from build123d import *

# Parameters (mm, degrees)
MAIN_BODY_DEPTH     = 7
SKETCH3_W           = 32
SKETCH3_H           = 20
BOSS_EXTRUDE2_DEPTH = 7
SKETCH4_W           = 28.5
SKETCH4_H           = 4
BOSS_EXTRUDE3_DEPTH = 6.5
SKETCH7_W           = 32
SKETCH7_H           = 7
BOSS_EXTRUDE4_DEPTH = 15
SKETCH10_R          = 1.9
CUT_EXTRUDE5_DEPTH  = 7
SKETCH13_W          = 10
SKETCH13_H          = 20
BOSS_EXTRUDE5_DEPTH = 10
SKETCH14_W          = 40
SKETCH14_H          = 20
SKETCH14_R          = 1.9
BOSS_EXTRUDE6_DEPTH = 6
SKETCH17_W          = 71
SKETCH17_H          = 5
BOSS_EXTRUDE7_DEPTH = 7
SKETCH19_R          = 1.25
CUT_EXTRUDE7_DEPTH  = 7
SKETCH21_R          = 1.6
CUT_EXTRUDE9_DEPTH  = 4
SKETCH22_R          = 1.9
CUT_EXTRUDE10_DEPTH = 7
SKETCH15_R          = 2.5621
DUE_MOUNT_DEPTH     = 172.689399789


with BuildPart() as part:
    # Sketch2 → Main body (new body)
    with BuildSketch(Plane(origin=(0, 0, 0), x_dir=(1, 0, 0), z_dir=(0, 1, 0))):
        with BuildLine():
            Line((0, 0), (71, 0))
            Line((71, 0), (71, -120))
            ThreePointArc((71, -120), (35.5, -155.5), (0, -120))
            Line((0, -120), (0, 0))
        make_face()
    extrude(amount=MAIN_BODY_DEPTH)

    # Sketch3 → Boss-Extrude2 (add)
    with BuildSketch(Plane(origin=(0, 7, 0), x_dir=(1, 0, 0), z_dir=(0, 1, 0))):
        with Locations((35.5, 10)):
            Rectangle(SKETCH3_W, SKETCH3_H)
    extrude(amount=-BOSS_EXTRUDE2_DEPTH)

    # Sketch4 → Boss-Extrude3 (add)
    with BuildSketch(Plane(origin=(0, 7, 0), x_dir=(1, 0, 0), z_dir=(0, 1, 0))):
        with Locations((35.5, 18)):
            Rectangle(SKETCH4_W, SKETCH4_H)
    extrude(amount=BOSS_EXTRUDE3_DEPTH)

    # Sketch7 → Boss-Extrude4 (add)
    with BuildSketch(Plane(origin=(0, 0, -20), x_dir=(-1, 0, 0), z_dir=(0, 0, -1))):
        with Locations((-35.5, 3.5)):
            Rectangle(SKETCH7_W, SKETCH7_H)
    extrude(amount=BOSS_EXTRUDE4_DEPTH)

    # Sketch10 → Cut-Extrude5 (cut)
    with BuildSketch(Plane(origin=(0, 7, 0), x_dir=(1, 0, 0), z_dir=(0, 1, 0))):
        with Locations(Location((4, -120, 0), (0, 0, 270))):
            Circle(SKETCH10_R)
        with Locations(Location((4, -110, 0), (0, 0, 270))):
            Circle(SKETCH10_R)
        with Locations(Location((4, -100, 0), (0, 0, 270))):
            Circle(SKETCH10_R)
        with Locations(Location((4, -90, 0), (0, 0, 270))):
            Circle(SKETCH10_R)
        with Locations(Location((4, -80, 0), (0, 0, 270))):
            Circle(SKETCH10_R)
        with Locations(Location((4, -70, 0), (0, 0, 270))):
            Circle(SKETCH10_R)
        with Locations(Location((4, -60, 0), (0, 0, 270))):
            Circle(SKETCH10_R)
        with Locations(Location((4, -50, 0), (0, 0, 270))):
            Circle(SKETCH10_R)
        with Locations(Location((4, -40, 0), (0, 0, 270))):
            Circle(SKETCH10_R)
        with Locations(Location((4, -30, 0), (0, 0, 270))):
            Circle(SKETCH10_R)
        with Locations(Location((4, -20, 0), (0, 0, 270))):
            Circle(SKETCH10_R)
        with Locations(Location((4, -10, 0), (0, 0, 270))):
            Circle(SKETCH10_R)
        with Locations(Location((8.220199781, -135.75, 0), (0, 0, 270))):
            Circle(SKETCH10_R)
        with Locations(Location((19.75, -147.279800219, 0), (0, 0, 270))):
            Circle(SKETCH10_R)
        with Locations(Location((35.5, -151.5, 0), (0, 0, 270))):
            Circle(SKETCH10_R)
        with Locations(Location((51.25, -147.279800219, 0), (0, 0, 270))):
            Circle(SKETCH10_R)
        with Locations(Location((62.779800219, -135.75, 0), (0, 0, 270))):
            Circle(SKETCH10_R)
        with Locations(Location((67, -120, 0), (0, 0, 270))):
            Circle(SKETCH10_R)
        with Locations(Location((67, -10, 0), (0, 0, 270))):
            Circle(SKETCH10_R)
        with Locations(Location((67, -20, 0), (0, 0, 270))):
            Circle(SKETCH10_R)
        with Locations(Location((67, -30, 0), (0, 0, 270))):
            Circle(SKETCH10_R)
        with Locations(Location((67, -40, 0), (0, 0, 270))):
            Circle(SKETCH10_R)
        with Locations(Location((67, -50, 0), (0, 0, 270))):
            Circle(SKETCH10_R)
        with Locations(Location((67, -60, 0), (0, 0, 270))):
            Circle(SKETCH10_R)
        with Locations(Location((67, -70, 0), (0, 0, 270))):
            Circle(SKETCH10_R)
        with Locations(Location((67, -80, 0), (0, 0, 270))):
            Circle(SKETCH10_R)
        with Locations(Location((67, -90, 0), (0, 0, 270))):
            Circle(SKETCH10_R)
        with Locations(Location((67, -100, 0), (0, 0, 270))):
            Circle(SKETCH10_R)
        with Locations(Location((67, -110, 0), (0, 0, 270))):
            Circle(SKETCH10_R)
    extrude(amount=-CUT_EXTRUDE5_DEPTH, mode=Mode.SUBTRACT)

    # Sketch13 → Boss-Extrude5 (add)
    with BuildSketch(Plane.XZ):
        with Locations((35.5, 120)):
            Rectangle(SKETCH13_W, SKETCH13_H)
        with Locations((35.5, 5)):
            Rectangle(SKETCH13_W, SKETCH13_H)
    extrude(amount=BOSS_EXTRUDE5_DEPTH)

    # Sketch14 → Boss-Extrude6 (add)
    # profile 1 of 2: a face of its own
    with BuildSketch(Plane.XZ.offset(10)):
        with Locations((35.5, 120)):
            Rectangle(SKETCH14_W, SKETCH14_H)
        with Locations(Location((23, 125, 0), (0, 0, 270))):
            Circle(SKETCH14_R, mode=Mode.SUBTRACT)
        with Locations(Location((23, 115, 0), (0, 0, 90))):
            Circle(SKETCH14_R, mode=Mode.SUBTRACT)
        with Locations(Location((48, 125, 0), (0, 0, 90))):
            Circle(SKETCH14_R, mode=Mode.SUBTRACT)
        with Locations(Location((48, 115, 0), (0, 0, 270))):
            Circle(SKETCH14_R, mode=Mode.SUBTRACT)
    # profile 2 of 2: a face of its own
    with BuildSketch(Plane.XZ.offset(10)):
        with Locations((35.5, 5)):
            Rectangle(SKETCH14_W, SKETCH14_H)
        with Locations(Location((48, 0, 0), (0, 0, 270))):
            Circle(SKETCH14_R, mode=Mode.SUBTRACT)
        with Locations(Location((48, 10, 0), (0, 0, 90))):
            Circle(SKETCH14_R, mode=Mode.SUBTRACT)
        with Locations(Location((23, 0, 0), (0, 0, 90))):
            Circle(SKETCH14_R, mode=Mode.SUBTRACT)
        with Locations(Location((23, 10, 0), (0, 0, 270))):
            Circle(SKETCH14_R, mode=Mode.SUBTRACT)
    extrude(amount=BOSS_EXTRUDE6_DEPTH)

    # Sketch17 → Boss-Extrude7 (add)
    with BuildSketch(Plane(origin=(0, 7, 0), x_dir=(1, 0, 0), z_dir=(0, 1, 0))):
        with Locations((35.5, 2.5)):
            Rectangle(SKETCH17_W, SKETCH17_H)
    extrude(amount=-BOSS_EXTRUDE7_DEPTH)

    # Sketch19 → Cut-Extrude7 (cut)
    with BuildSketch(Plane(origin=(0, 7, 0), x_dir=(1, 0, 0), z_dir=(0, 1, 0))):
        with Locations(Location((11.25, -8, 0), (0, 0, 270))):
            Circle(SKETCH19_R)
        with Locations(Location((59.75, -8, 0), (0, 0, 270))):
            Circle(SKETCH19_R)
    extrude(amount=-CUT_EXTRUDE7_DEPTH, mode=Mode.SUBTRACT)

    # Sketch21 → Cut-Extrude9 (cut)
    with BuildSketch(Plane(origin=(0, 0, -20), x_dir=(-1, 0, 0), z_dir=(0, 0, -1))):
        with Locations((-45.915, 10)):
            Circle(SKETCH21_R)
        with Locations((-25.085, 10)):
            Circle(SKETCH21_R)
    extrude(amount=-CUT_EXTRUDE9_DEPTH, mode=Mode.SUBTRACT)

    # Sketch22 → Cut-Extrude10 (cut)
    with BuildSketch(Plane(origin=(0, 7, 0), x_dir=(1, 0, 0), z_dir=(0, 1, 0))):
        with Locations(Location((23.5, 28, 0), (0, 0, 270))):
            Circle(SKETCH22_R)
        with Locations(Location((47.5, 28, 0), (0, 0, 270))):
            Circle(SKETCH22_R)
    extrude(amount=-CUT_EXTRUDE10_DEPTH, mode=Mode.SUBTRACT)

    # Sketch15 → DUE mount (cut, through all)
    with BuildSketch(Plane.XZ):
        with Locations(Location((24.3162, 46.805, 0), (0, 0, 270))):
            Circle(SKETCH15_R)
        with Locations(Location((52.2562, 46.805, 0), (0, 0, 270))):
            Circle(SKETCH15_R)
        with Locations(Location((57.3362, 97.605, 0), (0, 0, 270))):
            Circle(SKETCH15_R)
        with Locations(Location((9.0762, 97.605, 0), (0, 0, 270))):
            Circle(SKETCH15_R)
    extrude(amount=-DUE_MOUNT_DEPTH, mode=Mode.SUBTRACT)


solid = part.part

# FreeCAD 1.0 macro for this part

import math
import FreeCAD as App
import Part
import Sketcher
Q = App.Units.Quantity

doc = App.newDocument("Part")
body = doc.addObject("PartDesign::Body", "Body")

sketch1 = body.newObject("Sketcher::SketchObject", "Sketch")
sketch1.AttachmentSupport = (doc.getObject("XZ_Plane"), [""])
sketch1.MapMode = "FlatFace"
sketch1.addGeometry([
    Part.LineSegment(App.Vector(71, 0, 0), App.Vector(0, 0, 0)),
    Part.LineSegment(App.Vector(0, 0, 0), App.Vector(0, 120, 0)),
    Part.ArcOfCircle(Part.Circle(App.Vector(36, 120, 0), App.Vector(0, 0, 1), 36), math.radians(0), math.radians(180)),
    Part.LineSegment(App.Vector(71, 120, 0), App.Vector(71, 0, 0)),
], False)
sketch1.addConstraint([
    Sketcher.Constraint("Coincident", 0, 2, 1, 1),
    Sketcher.Constraint("Tangent", 1, 2, 2, 2),
    Sketcher.Constraint("Tangent", 2, 1, 3, 1),
    Sketcher.Constraint("Coincident", 3, 2, 0, 1),
    Sketcher.Constraint("Horizontal", 0),
    Sketcher.Constraint("Vertical", 1),
    Sketcher.Constraint("Vertical", 3),
    Sketcher.Constraint("Coincident", 0, 2, -1, 1),
    Sketcher.Constraint("Radius", 2, Q("35.5 mm")),
    Sketcher.Constraint("DistanceY", 1, 1, 1, 2, Q("120 mm")),
])
pad1 = body.newObject("PartDesign::Pad", "Pad")
pad1.Profile = sketch1
pad1.Length = 7
pad1.Reversed = True

sketch2 = body.newObject("Sketcher::SketchObject", "Sketch001")
sketch2.AttachmentSupport = (doc.getObject("XZ_Plane"), [""])
sketch2.MapMode = "FlatFace"
sketch2.AttachmentOffset = App.Placement(App.Vector(0, 0, -7), App.Rotation())
sketch2.addGeometry([
    Part.LineSegment(App.Vector(20, -20, 0), App.Vector(20, 0, 0)),
    Part.LineSegment(App.Vector(20, 0, 0), App.Vector(52, 0, 0)),
    Part.LineSegment(App.Vector(52, 0, 0), App.Vector(52, -20, 0)),
    Part.LineSegment(App.Vector(52, -20, 0), App.Vector(20, -20, 0)),
], False)
sketch2.addConstraint([
    Sketcher.Constraint("Coincident", 0, 2, 1, 1),
    Sketcher.Constraint("Coincident", 1, 2, 2, 1),
    Sketcher.Constraint("Coincident", 2, 2, 3, 1),
    Sketcher.Constraint("Coincident", 3, 2, 0, 1),
    Sketcher.Constraint("Vertical", 0),
    Sketcher.Constraint("Horizontal", 1),
    Sketcher.Constraint("Vertical", 2),
    Sketcher.Constraint("Horizontal", 3),
    Sketcher.Constraint("PointOnObject", 0, 2, -1),
    Sketcher.Constraint("DistanceX", 1, 1, 1, 2, Q("32 mm")),
    Sketcher.Constraint("DistanceY", 0, 1, 0, 2, Q("20 mm")),
    Sketcher.Constraint("DistanceX", -1, 1, 0, 2, Q("19.5 mm")),
])
pad2 = body.newObject("PartDesign::Pad", "Pad001")
pad2.Profile = sketch2
pad2.Length = 7

sketch3 = body.newObject("Sketcher::SketchObject", "Sketch002")
sketch3.AttachmentSupport = (doc.getObject("XZ_Plane"), [""])
sketch3.MapMode = "FlatFace"
sketch3.AttachmentOffset = App.Placement(App.Vector(0, 0, -7), App.Rotation())
sketch3.addGeometry([
    Part.LineSegment(App.Vector(21.2, -20, 0), App.Vector(21.2, -16, 0)),
    Part.LineSegment(App.Vector(21.2, -16, 0), App.Vector(49.8, -16, 0)),
    Part.LineSegment(App.Vector(49.8, -16, 0), App.Vector(49.8, -20, 0)),
    Part.LineSegment(App.Vector(49.8, -20, 0), App.Vector(21.2, -20, 0)),
], False)
sketch3.addConstraint([
    Sketcher.Constraint("Coincident", 0, 2, 1, 1),
    Sketcher.Constraint("Coincident", 1, 2, 2, 1),
    Sketcher.Constraint("Coincident", 2, 2, 3, 1),
    Sketcher.Constraint("Coincident", 3, 2, 0, 1),
    Sketcher.Constraint("Vertical", 0),
    Sketcher.Constraint("Horizontal", 1),
    Sketcher.Constraint("Vertical", 2),
    Sketcher.Constraint("Horizontal", 3),
    Sketcher.Constraint("DistanceY", 0, 1, 0, 2, Q("4 mm")),
    Sketcher.Constraint("DistanceX", 1, 1, 1, 2, Q("28.5 mm")),
    Sketcher.Constraint("DistanceY", 0, 2, -1, 1, Q("16 mm")),
    Sketcher.Constraint("DistanceX", -1, 1, 0, 2, Q("21.25 mm")),
])
pad3 = body.newObject("PartDesign::Pad", "Pad002")
pad3.Profile = sketch3
pad3.Length = 6.5
pad3.Reversed = True

sketch4 = body.newObject("Sketcher::SketchObject", "Sketch003")
sketch4.AttachmentSupport = (doc.getObject("XY_Plane"), [""])
sketch4.MapMode = "FlatFace"
sketch4.AttachmentOffset = App.Placement(App.Vector(0, 0, -20), App.Rotation())
sketch4.addGeometry([
    Part.LineSegment(App.Vector(52, 7, 0), App.Vector(52, 0, 0)),
    Part.LineSegment(App.Vector(52, 0, 0), App.Vector(20, 0, 0)),
    Part.LineSegment(App.Vector(20, 0, 0), App.Vector(20, 7, 0)),
    Part.LineSegment(App.Vector(20, 7, 0), App.Vector(52, 7, 0)),
], False)
sketch4.addConstraint([
    Sketcher.Constraint("Coincident", 0, 2, 1, 1),
    Sketcher.Constraint("Coincident", 1, 2, 2, 1),
    Sketcher.Constraint("Coincident", 2, 2, 3, 1),
    Sketcher.Constraint("Coincident", 3, 2, 0, 1),
    Sketcher.Constraint("Vertical", 0),
    Sketcher.Constraint("Horizontal", 1),
    Sketcher.Constraint("Vertical", 2),
    Sketcher.Constraint("Horizontal", 3),
    Sketcher.Constraint("PointOnObject", 0, 2, -1),
    Sketcher.Constraint("DistanceX", 1, 2, 1, 1, Q("32 mm")),
    Sketcher.Constraint("DistanceY", 0, 2, 0, 1, Q("7 mm")),
    Sketcher.Constraint("DistanceX", -1, 1, 0, 2, Q("51.5 mm")),
])
pad4 = body.newObject("PartDesign::Pad", "Pad003")
pad4.Profile = sketch4
pad4.Length = 15
pad4.Reversed = True

sketch5 = body.newObject("Sketcher::SketchObject", "Sketch004")
sketch5.AttachmentSupport = (doc.getObject("XZ_Plane"), [""])
sketch5.MapMode = "FlatFace"
sketch5.AttachmentOffset = App.Placement(App.Vector(0, 0, -7), App.Rotation())
sketch5.addGeometry([
    Part.Circle(App.Vector(4, 120, 0), App.Vector(0, 0, 1), 1.9),
    Part.Circle(App.Vector(4, 110, 0), App.Vector(0, 0, 1), 1.9),
    Part.Circle(App.Vector(4, 100, 0), App.Vector(0, 0, 1), 1.9),
    Part.Circle(App.Vector(4, 90, 0), App.Vector(0, 0, 1), 1.9),
    Part.Circle(App.Vector(4, 80, 0), App.Vector(0, 0, 1), 1.9),
    Part.Circle(App.Vector(4, 70, 0), App.Vector(0, 0, 1), 1.9),
    Part.Circle(App.Vector(4, 60, 0), App.Vector(0, 0, 1), 1.9),
    Part.Circle(App.Vector(4, 50, 0), App.Vector(0, 0, 1), 1.9),
    Part.Circle(App.Vector(4, 40, 0), App.Vector(0, 0, 1), 1.9),
    Part.Circle(App.Vector(4, 30, 0), App.Vector(0, 0, 1), 1.9),
    Part.Circle(App.Vector(4, 20, 0), App.Vector(0, 0, 1), 1.9),
    Part.Circle(App.Vector(4, 10, 0), App.Vector(0, 0, 1), 1.9),
    Part.Circle(App.Vector(8.2, 135.8, 0), App.Vector(0, 0, 1), 1.9),
    Part.Circle(App.Vector(19.8, 147.3, 0), App.Vector(0, 0, 1), 1.9),
    Part.Circle(App.Vector(35.5, 151.5, 0), App.Vector(0, 0, 1), 1.9),
    Part.Circle(App.Vector(51.2, 147.3, 0), App.Vector(0, 0, 1), 1.9),
    Part.Circle(App.Vector(62.8, 135.8, 0), App.Vector(0, 0, 1), 1.9),
    Part.Circle(App.Vector(67, 120, 0), App.Vector(0, 0, 1), 1.9),
    Part.Circle(App.Vector(67, 10, 0), App.Vector(0, 0, 1), 1.9),
    Part.Circle(App.Vector(67, 20, 0), App.Vector(0, 0, 1), 1.9),
    Part.Circle(App.Vector(67, 30, 0), App.Vector(0, 0, 1), 1.9),
    Part.Circle(App.Vector(67, 40, 0), App.Vector(0, 0, 1), 1.9),
    Part.Circle(App.Vector(67, 50, 0), App.Vector(0, 0, 1), 1.9),
    Part.Circle(App.Vector(67, 60, 0), App.Vector(0, 0, 1), 1.9),
    Part.Circle(App.Vector(67, 70, 0), App.Vector(0, 0, 1), 1.9),
    Part.Circle(App.Vector(67, 80, 0), App.Vector(0, 0, 1), 1.9),
    Part.Circle(App.Vector(67, 90, 0), App.Vector(0, 0, 1), 1.9),
    Part.Circle(App.Vector(67, 100, 0), App.Vector(0, 0, 1), 1.9),
    Part.Circle(App.Vector(67, 110, 0), App.Vector(0, 0, 1), 1.9),
], False)
sketch5.addConstraint([
    Sketcher.Constraint("Equal", 0, 1),
    Sketcher.Constraint("Equal", 1, 2),
    Sketcher.Constraint("Equal", 2, 3),
    Sketcher.Constraint("Equal", 3, 4),
    Sketcher.Constraint("Equal", 4, 5),
    Sketcher.Constraint("Equal", 5, 6),
    Sketcher.Constraint("Equal", 6, 7),
    Sketcher.Constraint("Equal", 7, 8),
    Sketcher.Constraint("Equal", 8, 9),
    Sketcher.Constraint("Equal", 9, 10),
    Sketcher.Constraint("Equal", 10, 11),
    Sketcher.Constraint("Equal", 11, 12),
    Sketcher.Constraint("Equal", 12, 13),
    Sketcher.Constraint("Equal", 13, 14),
    Sketcher.Constraint("Equal", 14, 15),
    Sketcher.Constraint("Equal", 15, 16),
    Sketcher.Constraint("Equal", 16, 17),
    Sketcher.Constraint("Equal", 17, 18),
    Sketcher.Constraint("Equal", 18, 19),
    Sketcher.Constraint("Equal", 19, 20),
    Sketcher.Constraint("Equal", 20, 21),
    Sketcher.Constraint("Equal", 21, 22),
    Sketcher.Constraint("Equal", 22, 23),
    Sketcher.Constraint("Equal", 23, 24),
    Sketcher.Constraint("Equal", 24, 25),
    Sketcher.Constraint("Equal", 25, 26),
    Sketcher.Constraint("Equal", 26, 27),
    Sketcher.Constraint("Equal", 27, 28),
    Sketcher.Constraint("Horizontal", 13, 3, 15, 3),
    Sketcher.Constraint("Horizontal", 12, 3, 16, 3),
    Sketcher.Constraint("Horizontal", 0, 3, 17, 3),
    Sketcher.Constraint("Horizontal", 11, 3, 18, 3),
    Sketcher.Constraint("Horizontal", 10, 3, 19, 3),
    Sketcher.Constraint("Horizontal", 9, 3, 20, 3),
    Sketcher.Constraint("Horizontal", 8, 3, 21, 3),
    Sketcher.Constraint("Horizontal", 7, 3, 22, 3),
    Sketcher.Constraint("Horizontal", 6, 3, 23, 3),
    Sketcher.Constraint("Horizontal", 5, 3, 24, 3),
    Sketcher.Constraint("Horizontal", 4, 3, 25, 3),
    Sketcher.Constraint("Horizontal", 3, 3, 26, 3),
    Sketcher.Constraint("Horizontal", 2, 3, 27, 3),
    Sketcher.Constraint("Horizontal", 1, 3, 28, 3),
    Sketcher.Constraint("Vertical", 0, 3, 1, 3),
    Sketcher.Constraint("Vertical", 1, 3, 2, 3),
    Sketcher.Constraint("Vertical", 2, 3, 3, 3),
    Sketcher.Constraint("Vertical", 3, 3, 4, 3),
    Sketcher.Constraint("Vertical", 4, 3, 5, 3),
    Sketcher.Constraint("Vertical", 5, 3, 6, 3),
    Sketcher.Constraint("Vertical", 6, 3, 7, 3),
    Sketcher.Constraint("Vertical", 7, 3, 8, 3),
    Sketcher.Constraint("Vertical", 8, 3, 9, 3),
    Sketcher.Constraint("Vertical", 9, 3, 10, 3),
    Sketcher.Constraint("Vertical", 10, 3, 11, 3),
    Sketcher.Constraint("Vertical", 17, 3, 18, 3),
    Sketcher.Constraint("Vertical", 18, 3, 19, 3),
    Sketcher.Constraint("Vertical", 19, 3, 20, 3),
    Sketcher.Constraint("Vertical", 20, 3, 21, 3),
    Sketcher.Constraint("Vertical", 21, 3, 22, 3),
    Sketcher.Constraint("Vertical", 22, 3, 23, 3),
    Sketcher.Constraint("Vertical", 23, 3, 24, 3),
    Sketcher.Constraint("Vertical", 24, 3, 25, 3),
    Sketcher.Constraint("Vertical", 25, 3, 26, 3),
    Sketcher.Constraint("Vertical", 26, 3, 27, 3),
    Sketcher.Constraint("Vertical", 27, 3, 28, 3),
    Sketcher.Constraint("Diameter", 0, Q("3.8 mm")),
    Sketcher.Constraint("DistanceX", -1, 1, 0, 3, Q("4 mm")),
    Sketcher.Constraint("DistanceY", -1, 1, 0, 3, Q("120 mm")),
    Sketcher.Constraint("DistanceY", -1, 1, 1, 3, Q("110 mm")),
    Sketcher.Constraint("DistanceY", -1, 1, 2, 3, Q("100 mm")),
    Sketcher.Constraint("DistanceY", -1, 1, 3, 3, Q("90 mm")),
    Sketcher.Constraint("DistanceY", -1, 1, 4, 3, Q("80 mm")),
    Sketcher.Constraint("DistanceY", -1, 1, 5, 3, Q("70 mm")),
    Sketcher.Constraint("DistanceY", -1, 1, 6, 3, Q("60 mm")),
    Sketcher.Constraint("DistanceY", -1, 1, 7, 3, Q("50 mm")),
    Sketcher.Constraint("DistanceY", -1, 1, 8, 3, Q("40 mm")),
    Sketcher.Constraint("DistanceY", -1, 1, 9, 3, Q("30 mm")),
    Sketcher.Constraint("DistanceY", -1, 1, 10, 3, Q("20 mm")),
    Sketcher.Constraint("DistanceY", -1, 1, 11, 3, Q("10 mm")),
    Sketcher.Constraint("DistanceX", -1, 1, 17, 3, Q("67 mm")),
    Sketcher.Constraint("DistanceX", -1, 1, 14, 3, Q("35.5 mm")),
    Sketcher.Constraint("DistanceY", -1, 1, 14, 3, Q("151.5 mm")),
    Sketcher.Constraint("DistanceX", 13, 3, 15, 3, Q("31.5 mm")),
    Sketcher.Constraint("DistanceY", -1, 1, 12, 3, Q("135.75 mm")),
    Sketcher.Constraint("DistanceX", -1, 1, 13, 3, Q("19.75 mm")),
    Sketcher.Constraint("DistanceX", -1, 1, 12, 3, Q("8.2202 mm")),
    Sketcher.Constraint("DistanceY", -1, 1, 13, 3, Q("147.2798 mm")),
    Sketcher.Constraint("DistanceX", -1, 1, 16, 3, Q("62.7798 mm")),
])
pocket1 = body.newObject("PartDesign::Pocket", "Pocket")
pocket1.Profile = sketch5
pocket1.Length = 7
pocket1.Reversed = True

sketch6 = body.newObject("Sketcher::SketchObject", "Sketch005")
sketch6.AttachmentSupport = (doc.getObject("XZ_Plane"), [""])
sketch6.MapMode = "FlatFace"
sketch6.addGeometry([
    Part.LineSegment(App.Vector(30, 130, 0), App.Vector(30, 110, 0)),
    Part.LineSegment(App.Vector(30, 110, 0), App.Vector(40, 110, 0)),
    Part.LineSegment(App.Vector(40, 110, 0), App.Vector(40, 130, 0)),
    Part.LineSegment(App.Vector(40, 130, 0), App.Vector(30, 130, 0)),
    Part.LineSegment(App.Vector(30, 15, 0), App.Vector(30, -5, 0)),
    Part.LineSegment(App.Vector(30, -5, 0), App.Vector(40, -5, 0)),
    Part.LineSegment(App.Vector(40, -5, 0), App.Vector(40, 15, 0)),
    Part.LineSegment(App.Vector(40, 15, 0), App.Vector(30, 15, 0)),
], False)
sketch6.addConstraint([
    Sketcher.Constraint("Coincident", 0, 2, 1, 1),
    Sketcher.Constraint("Coincident", 1, 2, 2, 1),
    Sketcher.Constraint("Coincident", 2, 2, 3, 1),
    Sketcher.Constraint("Coincident", 3, 2, 0, 1),
    Sketcher.Constraint("Coincident", 4, 2, 5, 1),
    Sketcher.Constraint("Coincident", 5, 2, 6, 1),
    Sketcher.Constraint("Coincident", 6, 2, 7, 1),
    Sketcher.Constraint("Coincident", 7, 2, 4, 1),
    Sketcher.Constraint("Vertical", 0),
    Sketcher.Constraint("Horizontal", 1),
    Sketcher.Constraint("Vertical", 2),
    Sketcher.Constraint("Horizontal", 3),
    Sketcher.Constraint("Vertical", 4),
    Sketcher.Constraint("Horizontal", 5),
    Sketcher.Constraint("Vertical", 6),
    Sketcher.Constraint("Horizontal", 7),
    Sketcher.Constraint("Vertical", 3, 2, 4, 2),
    Sketcher.Constraint("Vertical", 2, 2, 5, 2),
    Sketcher.Constraint("Equal", 2, 4),
    Sketcher.Constraint("DistanceX", 1, 1, 1, 2, Q("10 mm")),
    Sketcher.Constraint("DistanceY", 0, 2, 0, 1, Q("20 mm")),
    Sketcher.Constraint("DistanceY", -1, 1, 0, 2, Q("110 mm")),
    Sketcher.Constraint("DistanceY", 4, 2, -1, 1, Q("5 mm")),
    Sketcher.Constraint("DistanceX", -1, 1, 0, 2, Q("30.5 mm")),
])
pad5 = body.newObject("PartDesign::Pad", "Pad004")
pad5.Profile = sketch6
pad5.Length = 10

sketch7 = body.newObject("Sketcher::SketchObject", "Sketch006")
sketch7.AttachmentSupport = (doc.getObject("XZ_Plane"), [""])
sketch7.MapMode = "FlatFace"
sketch7.AttachmentOffset = App.Placement(App.Vector(0, 0, 10), App.Rotation())
sketch7.addGeometry([
    Part.LineSegment(App.Vector(15.5, 130, 0), App.Vector(15.5, 110, 0)),
    Part.LineSegment(App.Vector(15.5, 110, 0), App.Vector(55.5, 110, 0)),
    Part.LineSegment(App.Vector(55.5, 110, 0), App.Vector(55.5, 130, 0)),
    Part.LineSegment(App.Vector(55.5, 130, 0), App.Vector(15.5, 130, 0)),
    Part.Circle(App.Vector(23, 115, 0), App.Vector(0, 0, 1), 1.9),
    Part.Circle(App.Vector(48, 115, 0), App.Vector(0, 0, 1), 1.9),
    Part.Circle(App.Vector(23, 125, 0), App.Vector(0, 0, 1), 1.9),
    Part.Circle(App.Vector(48, 125, 0), App.Vector(0, 0, 1), 1.9),
    Part.LineSegment(App.Vector(15.5, 15, 0), App.Vector(15.5, -5, 0)),
    Part.LineSegment(App.Vector(15.5, -5, 0), App.Vector(55.5, -5, 0)),
    Part.LineSegment(App.Vector(55.5, -5, 0), App.Vector(55.5, 15, 0)),
    Part.LineSegment(App.Vector(55.5, 15, 0), App.Vector(15.5, 15, 0)),
    Part.Circle(App.Vector(23, 0, 0), App.Vector(0, 0, 1), 1.9),
    Part.Circle(App.Vector(48, 0, 0), App.Vector(0, 0, 1), 1.9),
    Part.Circle(App.Vector(23, 10, 0), App.Vector(0, 0, 1), 1.9),
    Part.Circle(App.Vector(48, 10, 0), App.Vector(0, 0, 1), 1.9),
], False)
sketch7.addConstraint([
    Sketcher.Constraint("Coincident", 0, 2, 1, 1),
    Sketcher.Constraint("Coincident", 1, 2, 2, 1),
    Sketcher.Constraint("Coincident", 2, 2, 3, 1),
    Sketcher.Constraint("Coincident", 3, 2, 0, 1),
    Sketcher.Constraint("Coincident", 8, 2, 9, 1),
    Sketcher.Constraint("Coincident", 9, 2, 10, 1),
    Sketcher.Constraint("Coincident", 10, 2, 11, 1),
    Sketcher.Constraint("Coincident", 11, 2, 8, 1),
    Sketcher.Constraint("Vertical", 0),
    Sketcher.Constraint("Horizontal", 1),
    Sketcher.Constraint("Vertical", 2),
    Sketcher.Constraint("Horizontal", 3),
    Sketcher.Constraint("Vertical", 8),
    Sketcher.Constraint("Horizontal", 9),
    Sketcher.Constraint("Vertical", 10),
    Sketcher.Constraint("Horizontal", 11),
    Sketcher.Constraint("Equal", 4, 5),
    Sketcher.Constraint("Equal", 5, 6),
    Sketcher.Constraint("Equal", 6, 7),
    Sketcher.Constraint("Equal", 7, 12),
    Sketcher.Constraint("Equal", 12, 13),
    Sketcher.Constraint("Equal", 13, 14),
    Sketcher.Constraint("Equal", 14, 15),
    Sketcher.Constraint("PointOnObject", 12, 3, -1),
    Sketcher.Constraint("PointOnObject", 13, 3, -1),
    Sketcher.Constraint("Horizontal", 4, 3, 5, 3),
    Sketcher.Constraint("Horizontal", 6, 3, 7, 3),
    Sketcher.Constraint("Horizontal", 14, 3, 15, 3),
    Sketcher.Constraint("Vertical", 4, 3, 6, 3),
    Sketcher.Constraint("Vertical", 5, 3, 7, 3),
    Sketcher.Constraint("Vertical", 6, 3, 12, 3),
    Sketcher.Constraint("Vertical", 7, 3, 13, 3),
    Sketcher.Constraint("Vertical", 12, 3, 14, 3),
    Sketcher.Constraint("Vertical", 13, 3, 15, 3),
    Sketcher.Constraint("Vertical", 3, 2, 8, 2),
    Sketcher.Constraint("Vertical", 2, 2, 9, 2),
    Sketcher.Constraint("Equal", 2, 8),
    Sketcher.Constraint("Diameter", 4, Q("3.8 mm")),
    Sketcher.Constraint("DistanceX", 1, 1, 1, 2, Q("40 mm")),
    Sketcher.Constraint("DistanceY", 0, 2, 0, 1, Q("20 mm")),
    Sketcher.Constraint("DistanceX", -1, 1, 4, 3, Q("23 mm")),
    Sketcher.Constraint("DistanceY", -1, 1, 4, 3, Q("115 mm")),
    Sketcher.Constraint("DistanceX", -1, 1, 5, 3, Q("48 mm")),
    Sketcher.Constraint("DistanceY", -1, 1, 6, 3, Q("125 mm")),
    Sketcher.Constraint("DistanceY", -1, 1, 14, 3, Q("10 mm")),
    Sketcher.Constraint("DistanceY", -1, 1, 0, 2, Q("110 mm")),
    Sketcher.Constraint("DistanceY", 8, 2, -1, 1, Q("5 mm")),
    Sketcher.Constraint("DistanceX", -1, 1, 0, 2, Q("15.5 mm")),
])
pad6 = body.newObject("PartDesign::Pad", "Pad005")
pad6.Profile = sketch7
pad6.Length = 6

sketch8 = body.newObject("Sketcher::SketchObject", "Sketch007")
sketch8.AttachmentSupport = (doc.getObject("XZ_Plane"), [""])
sketch8.MapMode = "FlatFace"
sketch8.AttachmentOffset = App.Placement(App.Vector(0, 0, -7), App.Rotation())
sketch8.addGeometry([
    Part.LineSegment(App.Vector(0, -5, 0), App.Vector(0, 0, 0)),
    Part.LineSegment(App.Vector(0, 0, 0), App.Vector(71, 0, 0)),
    Part.LineSegment(App.Vector(71, 0, 0), App.Vector(71, -5, 0)),
    Part.LineSegment(App.Vector(71, -5, 0), App.Vector(0, -5, 0)),
], False)
sketch8.addConstraint([
    Sketcher.Constraint("Coincident", 0, 2, 1, 1),
    Sketcher.Constraint("Coincident", 1, 2, 2, 1),
    Sketcher.Constraint("Coincident", 2, 2, 3, 1),
    Sketcher.Constraint("Coincident", 3, 2, 0, 1),
    Sketcher.Constraint("Vertical", 0),
    Sketcher.Constraint("Horizontal", 1),
    Sketcher.Constraint("Vertical", 2),
    Sketcher.Constraint("Horizontal", 3),
    Sketcher.Constraint("Coincident", 0, 2, -1, 1),
    Sketcher.Constraint("DistanceX", 1, 1, 1, 2, Q("71 mm")),
    Sketcher.Constraint("DistanceY", 0, 1, 0, 2, Q("5 mm")),
])
pad7 = body.newObject("PartDesign::Pad", "Pad006")
pad7.Profile = sketch8
pad7.Length = 7

sketch9 = body.newObject("Sketcher::SketchObject", "Sketch008")
sketch9.AttachmentSupport = (doc.getObject("XZ_Plane"), [""])
sketch9.MapMode = "FlatFace"
sketch9.AttachmentOffset = App.Placement(App.Vector(0, 0, -7), App.Rotation())
sketch9.addGeometry([
    Part.Circle(App.Vector(11.2, 8, 0), App.Vector(0, 0, 1), 1.2),
    Part.Circle(App.Vector(59.8, 8, 0), App.Vector(0, 0, 1), 1.2),
], False)
sketch9.addConstraint([
    Sketcher.Constraint("Equal", 0, 1),
    Sketcher.Constraint("Horizontal", 0, 3, 1, 3),
    Sketcher.Constraint("Diameter", 0, Q("2.5 mm")),
    Sketcher.Constraint("DistanceY", -1, 1, 0, 3, Q("8 mm")),
    Sketcher.Constraint("DistanceX", 0, 3, 1, 3, Q("48.5 mm")),
    Sketcher.Constraint("DistanceX", -1, 1, 0, 3, Q("11.25 mm")),
])
pocket2 = body.newObject("PartDesign::Pocket", "Pocket001")
pocket2.Profile = sketch9
pocket2.Length = 7
pocket2.Reversed = True

sketch10 = body.newObject("Sketcher::SketchObject", "Sketch009")
sketch10.AttachmentSupport = (doc.getObject("XY_Plane"), [""])
sketch10.MapMode = "FlatFace"
sketch10.AttachmentOffset = App.Placement(App.Vector(0, 0, -20), App.Rotation())
sketch10.addGeometry([
    Part.Circle(App.Vector(45.9, 10, 0), App.Vector(0, 0, 1), 1.6),
    Part.Circle(App.Vector(25.1, 10, 0), App.Vector(0, 0, 1), 1.6),
], False)
sketch10.addConstraint([
    Sketcher.Constraint("Equal", 0, 1),
    Sketcher.Constraint("Horizontal", 0, 3, 1, 3),
    Sketcher.Constraint("Diameter", 0, Q("3.2 mm")),
    Sketcher.Constraint("DistanceY", -1, 1, 0, 3, Q("10 mm")),
    Sketcher.Constraint("DistanceX", 1, 3, 0, 3, Q("20.83 mm")),
    Sketcher.Constraint("DistanceX", -1, 1, 0, 3, Q("45.915 mm")),
])
pocket3 = body.newObject("PartDesign::Pocket", "Pocket002")
pocket3.Profile = sketch10
pocket3.Length = 4
pocket3.Reversed = True

sketch11 = body.newObject("Sketcher::SketchObject", "Sketch010")
sketch11.AttachmentSupport = (doc.getObject("XZ_Plane"), [""])
sketch11.MapMode = "FlatFace"
sketch11.AttachmentOffset = App.Placement(App.Vector(0, 0, -7), App.Rotation())
sketch11.addGeometry([
    Part.Circle(App.Vector(23.5, -28, 0), App.Vector(0, 0, 1), 1.9),
    Part.Circle(App.Vector(47.5, -28, 0), App.Vector(0, 0, 1), 1.9),
], False)
sketch11.addConstraint([
    Sketcher.Constraint("Equal", 0, 1),
    Sketcher.Constraint("Horizontal", 0, 3, 1, 3),
    Sketcher.Constraint("Diameter", 0, Q("3.8 mm")),
    Sketcher.Constraint("DistanceY", 0, 3, -1, 1, Q("28 mm")),
    Sketcher.Constraint("DistanceX", 0, 3, 1, 3, Q("24 mm")),
    Sketcher.Constraint("DistanceX", -1, 1, 0, 3, Q("23.5 mm")),
])
pocket4 = body.newObject("PartDesign::Pocket", "Pocket003")
pocket4.Profile = sketch11
pocket4.Length = 7
pocket4.Reversed = True

sketch12 = body.newObject("Sketcher::SketchObject", "Sketch011")
sketch12.AttachmentSupport = (doc.getObject("XZ_Plane"), [""])
sketch12.MapMode = "FlatFace"
sketch12.addGeometry([
    Part.Circle(App.Vector(24.3, 46.8, 0), App.Vector(0, 0, 1), 2.6),
    Part.Circle(App.Vector(52.3, 46.8, 0), App.Vector(0, 0, 1), 2.6),
    Part.Circle(App.Vector(57.3, 97.6, 0), App.Vector(0, 0, 1), 2.6),
    Part.Circle(App.Vector(9.1, 97.6, 0), App.Vector(0, 0, 1), 2.6),
], False)
sketch12.addConstraint([
    Sketcher.Constraint("Equal", 0, 1),
    Sketcher.Constraint("Equal", 1, 2),
    Sketcher.Constraint("Equal", 2, 3),
    Sketcher.Constraint("Horizontal", 0, 3, 1, 3),
    Sketcher.Constraint("Horizontal", 2, 3, 3, 3),
    Sketcher.Constraint("Diameter", 0, Q("5.1242 mm")),
    Sketcher.Constraint("DistanceY", 1, 3, 2, 3, Q("50.8 mm")),
    Sketcher.Constraint("DistanceX", 0, 3, 1, 3, Q("27.94 mm")),
    Sketcher.Constraint("DistanceX", 1, 3, 2, 3, Q("5.08 mm")),
    Sketcher.Constraint("DistanceX", 3, 3, 2, 3, Q("48.26 mm")),
    Sketcher.Constraint("DistanceY", -1, 1, 0, 3, Q("46.805 mm")),
    Sketcher.Constraint("DistanceX", -1, 1, 0, 3, Q("24.3162 mm")),
])
pocket5 = body.newObject("PartDesign::Pocket", "Pocket004")
pocket5.Profile = sketch12
pocket5.Type = "ThroughAll"

doc.recompute()
